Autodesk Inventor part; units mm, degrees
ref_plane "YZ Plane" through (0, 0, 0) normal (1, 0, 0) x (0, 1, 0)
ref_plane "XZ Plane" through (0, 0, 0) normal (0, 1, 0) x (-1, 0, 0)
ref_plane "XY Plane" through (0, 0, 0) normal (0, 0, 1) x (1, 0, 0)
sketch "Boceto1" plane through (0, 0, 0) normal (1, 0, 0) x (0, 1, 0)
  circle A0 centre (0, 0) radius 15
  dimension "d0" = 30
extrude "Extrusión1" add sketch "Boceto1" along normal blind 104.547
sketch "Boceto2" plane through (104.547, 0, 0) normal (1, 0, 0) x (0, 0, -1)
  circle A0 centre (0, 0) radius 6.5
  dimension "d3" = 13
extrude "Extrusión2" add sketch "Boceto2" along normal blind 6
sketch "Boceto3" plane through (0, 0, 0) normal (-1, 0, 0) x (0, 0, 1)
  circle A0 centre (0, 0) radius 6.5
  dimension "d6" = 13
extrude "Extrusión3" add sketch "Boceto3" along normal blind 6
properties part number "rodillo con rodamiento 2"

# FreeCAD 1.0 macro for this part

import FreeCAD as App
import Part
import Sketcher
from FreeCAD import Vector

doc = App.newDocument("Part")
body = doc.addObject("PartDesign::Body", "Body")

# Sketch on YZ plane
sketch1 = body.newObject("Sketcher::SketchObject", "Sketch")
sketch1.AttachmentSupport = (doc.getObject("YZ_Plane"), [""])
sketch1.MapMode = "FlatFace"
sketch1.addGeometry(Part.Circle(Vector(0, 0, 0), Vector(0, 0, 1), 15), False)
sketch1.addConstraint(Sketcher.Constraint("Coincident", 0, 3, -1, 1))
sketch1.addConstraint(Sketcher.Constraint("Diameter", 0, 30.0))
pad1 = body.newObject("PartDesign::Pad", "Pad")
pad1.Profile = sketch1
pad1.Length = 104.547

# Sketch on YZ plane
sketch2 = body.newObject("Sketcher::SketchObject", "Sketch001")
sketch2.AttachmentSupport = (doc.getObject("YZ_Plane"), [""])
sketch2.MapMode = "FlatFace"
sketch2.AttachmentOffset = App.Placement(Vector(0, 0, 104.547), App.Rotation())
sketch2.addGeometry(Part.Circle(Vector(0, 0, 0), Vector(0, 0, 1), 6), False)
sketch2.addConstraint(Sketcher.Constraint("Coincident", 0, 3, -1, 1))
sketch2.addConstraint(Sketcher.Constraint("Diameter", 0, 13.0))
pad2 = body.newObject("PartDesign::Pad", "Pad001")
pad2.Profile = sketch2
pad2.Length = 6

# Sketch on YZ plane
sketch3 = body.newObject("Sketcher::SketchObject", "Sketch002")
sketch3.AttachmentSupport = (doc.getObject("YZ_Plane"), [""])
sketch3.MapMode = "FlatFace"
sketch3.addGeometry(Part.Circle(Vector(0, 0, 0), Vector(0, 0, 1), 6), False)
sketch3.addConstraint(Sketcher.Constraint("Coincident", 0, 3, -1, 1))
sketch3.addConstraint(Sketcher.Constraint("Diameter", 0, 13.0))
pad3 = body.newObject("PartDesign::Pad", "Pad002")
pad3.Profile = sketch3
pad3.Length = 6
pad3.Reversed = True

doc.recompute()
